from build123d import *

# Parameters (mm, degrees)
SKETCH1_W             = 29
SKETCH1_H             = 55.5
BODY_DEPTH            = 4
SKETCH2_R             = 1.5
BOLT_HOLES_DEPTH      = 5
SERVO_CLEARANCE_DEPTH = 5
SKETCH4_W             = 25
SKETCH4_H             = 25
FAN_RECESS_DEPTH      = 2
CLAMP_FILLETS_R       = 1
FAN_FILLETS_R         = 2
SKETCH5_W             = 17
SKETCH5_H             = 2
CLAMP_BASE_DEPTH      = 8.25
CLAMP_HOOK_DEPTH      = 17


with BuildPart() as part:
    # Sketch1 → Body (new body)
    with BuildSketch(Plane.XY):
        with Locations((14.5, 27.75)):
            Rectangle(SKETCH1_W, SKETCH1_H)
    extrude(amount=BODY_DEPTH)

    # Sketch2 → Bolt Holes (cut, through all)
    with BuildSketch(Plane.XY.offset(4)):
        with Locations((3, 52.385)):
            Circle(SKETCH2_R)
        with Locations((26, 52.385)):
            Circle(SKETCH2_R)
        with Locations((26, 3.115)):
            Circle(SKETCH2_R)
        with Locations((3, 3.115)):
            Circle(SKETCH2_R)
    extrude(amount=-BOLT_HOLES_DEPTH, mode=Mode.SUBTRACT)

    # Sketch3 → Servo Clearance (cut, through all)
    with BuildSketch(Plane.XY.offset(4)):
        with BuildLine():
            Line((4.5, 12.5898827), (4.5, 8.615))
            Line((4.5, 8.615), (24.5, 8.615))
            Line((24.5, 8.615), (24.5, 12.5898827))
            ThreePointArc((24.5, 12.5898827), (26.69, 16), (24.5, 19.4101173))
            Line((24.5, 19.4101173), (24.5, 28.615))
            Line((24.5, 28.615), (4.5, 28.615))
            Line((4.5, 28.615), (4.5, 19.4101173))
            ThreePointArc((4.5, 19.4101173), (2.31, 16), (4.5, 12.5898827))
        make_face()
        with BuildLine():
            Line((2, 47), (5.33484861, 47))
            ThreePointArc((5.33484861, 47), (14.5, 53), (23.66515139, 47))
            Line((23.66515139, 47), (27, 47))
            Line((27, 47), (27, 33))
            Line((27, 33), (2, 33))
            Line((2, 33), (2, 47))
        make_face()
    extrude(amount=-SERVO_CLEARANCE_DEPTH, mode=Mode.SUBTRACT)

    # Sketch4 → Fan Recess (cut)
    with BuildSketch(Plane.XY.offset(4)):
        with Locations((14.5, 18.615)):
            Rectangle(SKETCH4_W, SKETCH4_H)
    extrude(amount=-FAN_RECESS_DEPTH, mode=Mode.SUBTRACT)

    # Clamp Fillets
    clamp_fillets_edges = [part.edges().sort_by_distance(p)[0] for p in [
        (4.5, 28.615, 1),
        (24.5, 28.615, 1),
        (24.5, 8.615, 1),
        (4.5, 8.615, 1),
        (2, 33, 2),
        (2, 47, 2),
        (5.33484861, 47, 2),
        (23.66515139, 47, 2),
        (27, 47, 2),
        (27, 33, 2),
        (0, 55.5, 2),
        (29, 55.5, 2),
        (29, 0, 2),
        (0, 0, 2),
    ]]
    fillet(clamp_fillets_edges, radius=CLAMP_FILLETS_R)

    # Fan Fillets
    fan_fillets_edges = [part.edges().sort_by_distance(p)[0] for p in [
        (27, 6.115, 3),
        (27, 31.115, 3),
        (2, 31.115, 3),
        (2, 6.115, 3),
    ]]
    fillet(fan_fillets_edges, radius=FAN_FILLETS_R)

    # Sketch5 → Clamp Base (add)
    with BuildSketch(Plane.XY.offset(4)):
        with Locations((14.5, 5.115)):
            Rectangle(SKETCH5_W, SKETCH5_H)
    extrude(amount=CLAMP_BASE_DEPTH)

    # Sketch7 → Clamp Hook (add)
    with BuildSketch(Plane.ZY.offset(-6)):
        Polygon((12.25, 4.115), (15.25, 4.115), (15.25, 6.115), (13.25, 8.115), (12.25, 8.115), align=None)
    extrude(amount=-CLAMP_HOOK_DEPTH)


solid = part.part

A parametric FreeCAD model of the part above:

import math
import FreeCAD as App
import Part
import Sketcher
from FreeCAD import Vector


def edges_at(feature, points):
    """Names of the edges that pass closest to the given points."""
    edges = feature.Shape.Edges
    near = lambda p: min(range(len(edges)), key=lambda i: edges[i].distToShape(Part.Vertex(*p))[0])
    return sorted({f"Edge{near(p) + 1}" for p in points})


def add_polygon(sketch, points):
    """Adds a closed chain of lines whose ends are joined by coincident constraints."""
    first, n = sketch.GeometryCount, len(points)
    for a, b in zip(points, points[1:] + points[:1]):
        sketch.addGeometry(Part.LineSegment(App.Vector(*a, 0), App.Vector(*b, 0)), False)
    for i in range(n):
        sketch.addConstraint(Sketcher.Constraint("Coincident", first + i, 2, first + (i + 1) % n, 1))

doc = App.newDocument("Part")
body = doc.addObject("PartDesign::Body", "Body")

sketch1 = doc.addObject("Sketcher::SketchObject", "Sketch")
body.addObject(sketch1)
sketch1.AttachmentSupport = (doc.XY_Plane, [""])
sketch1.MapMode = "FlatFace"
add_polygon(sketch1, [(0, 56), (0, 0), (29, 0), (29, 56)])
sketch1.addConstraint(Sketcher.Constraint("Vertical", 0))
sketch1.addConstraint(Sketcher.Constraint("Horizontal", 1))
sketch1.addConstraint(Sketcher.Constraint("Vertical", 2))
sketch1.addConstraint(Sketcher.Constraint("Horizontal", 3))
sketch1.addConstraint(Sketcher.Constraint("Coincident", 0, 2, -1, 1))
sketch1.addConstraint(Sketcher.Constraint("DistanceX", 1, 1, 1, 2, 29.0))
sketch1.addConstraint(Sketcher.Constraint("DistanceY", 0, 2, 0, 1, 55.5))
pad1 = doc.addObject("PartDesign::Pad", "Pad")
body.addObject(pad1)
pad1.Profile = sketch1
pad1.Length = 4

sketch2 = doc.addObject("Sketcher::SketchObject", "Sketch001")
body.addObject(sketch2)
sketch2.AttachmentSupport = (doc.XY_Plane, [""])
sketch2.MapMode = "FlatFace"
sketch2.AttachmentOffset = App.Placement(Vector(0, 0, 4), App.Rotation())
sketch2.addGeometry(Part.Circle(Vector(3, 52.4, 0), Vector(0, 0, 1), 1.5), False)
sketch2.addGeometry(Part.Circle(Vector(26, 52.4, 0), Vector(0, 0, 1), 1.5), False)
sketch2.addGeometry(Part.Circle(Vector(26, 3.1, 0), Vector(0, 0, 1), 1.5), False)
sketch2.addGeometry(Part.Circle(Vector(3, 3.1, 0), Vector(0, 0, 1), 1.5), False)
sketch2.addConstraint(Sketcher.Constraint("Equal", 0, 1))
sketch2.addConstraint(Sketcher.Constraint("Equal", 1, 2))
sketch2.addConstraint(Sketcher.Constraint("Equal", 2, 3))
sketch2.addConstraint(Sketcher.Constraint("Horizontal", 0, 3, 1, 3))
sketch2.addConstraint(Sketcher.Constraint("Horizontal", 2, 3, 3, 3))
sketch2.addConstraint(Sketcher.Constraint("Vertical", 1, 3, 2, 3))
sketch2.addConstraint(Sketcher.Constraint("Vertical", 0, 3, 3, 3))
sketch2.addConstraint(Sketcher.Constraint("Diameter", 0, 3.0))
sketch2.addConstraint(Sketcher.Constraint("DistanceX", -1, 1, 0, 3, 3.0))
sketch2.addConstraint(Sketcher.Constraint("DistanceX", -1, 1, 1, 3, 26.0))
sketch2.addConstraint(Sketcher.Constraint("DistanceY", 2, 3, 1, 3, 49.27))
sketch2.addConstraint(Sketcher.Constraint("DistanceY", -1, 1, 0, 3, 52.385))
pocket1 = doc.addObject("PartDesign::Pocket", "Pocket")
body.addObject(pocket1)
pocket1.Profile = sketch2
pocket1.Type = "ThroughAll"

sketch3 = doc.addObject("Sketcher::SketchObject", "Sketch002")
body.addObject(sketch3)
sketch3.AttachmentSupport = (doc.XY_Plane, [""])
sketch3.MapMode = "FlatFace"
sketch3.AttachmentOffset = App.Placement(Vector(0, 0, 4), App.Rotation())
sketch3.addGeometry(Part.LineSegment(Vector(4.5, 12.6, 0), Vector(4.5, 8.6, 0)), False)
sketch3.addGeometry(Part.LineSegment(Vector(4.5, 8.6, 0), Vector(24.5, 8.6, 0)), False)
sketch3.addGeometry(Part.LineSegment(Vector(24.5, 8.6, 0), Vector(24.5, 12.6, 0)), False)
sketch3.addGeometry(Part.ArcOfCircle(Part.Circle(Vector(22.9, 16, 0), Vector(0, 0, 1), 3.8), math.radians(-65), math.radians(65)), False)
sketch3.addGeometry(Part.LineSegment(Vector(24.5, 19.4, 0), Vector(24.5, 28.6, 0)), False)
sketch3.addGeometry(Part.LineSegment(Vector(24.5, 28.6, 0), Vector(4.5, 28.6, 0)), False)
sketch3.addGeometry(Part.LineSegment(Vector(4.5, 28.6, 0), Vector(4.5, 19.4, 0)), False)
sketch3.addGeometry(Part.ArcOfCircle(Part.Circle(Vector(6.1, 16, 0), Vector(0, 0, 1), 3.8), math.radians(115), math.radians(245)), False)
sketch3.addGeometry(Part.LineSegment(Vector(5.3, 47, 0), Vector(2, 47, 0)), False)
sketch3.addGeometry(Part.LineSegment(Vector(2, 47, 0), Vector(2, 33, 0)), False)
sketch3.addGeometry(Part.LineSegment(Vector(2, 33, 0), Vector(27, 33, 0)), False)
sketch3.addGeometry(Part.LineSegment(Vector(27, 33, 0), Vector(27, 47, 0)), False)
sketch3.addGeometry(Part.LineSegment(Vector(27, 47, 0), Vector(23.7, 47, 0)), False)
sketch3.addGeometry(Part.ArcOfCircle(Part.Circle(Vector(14.5, 43, 0), Vector(0, 0, 1), 10), math.radians(24), math.radians(156)), False)
sketch3.addConstraint(Sketcher.Constraint("Coincident", 0, 2, 1, 1))
sketch3.addConstraint(Sketcher.Constraint("Coincident", 1, 2, 2, 1))
sketch3.addConstraint(Sketcher.Constraint("Coincident", 2, 2, 3, 1))
sketch3.addConstraint(Sketcher.Constraint("Coincident", 3, 2, 4, 1))
sketch3.addConstraint(Sketcher.Constraint("Coincident", 4, 2, 5, 1))
sketch3.addConstraint(Sketcher.Constraint("Coincident", 5, 2, 6, 1))
sketch3.addConstraint(Sketcher.Constraint("Coincident", 6, 2, 7, 1))
sketch3.addConstraint(Sketcher.Constraint("Coincident", 7, 2, 0, 1))
sketch3.addConstraint(Sketcher.Constraint("Coincident", 8, 2, 9, 1))
sketch3.addConstraint(Sketcher.Constraint("Coincident", 9, 2, 10, 1))
sketch3.addConstraint(Sketcher.Constraint("Coincident", 10, 2, 11, 1))
sketch3.addConstraint(Sketcher.Constraint("Coincident", 11, 2, 12, 1))
sketch3.addConstraint(Sketcher.Constraint("Coincident", 12, 2, 13, 1))
sketch3.addConstraint(Sketcher.Constraint("Coincident", 13, 2, 8, 1))
sketch3.addConstraint(Sketcher.Constraint("Vertical", 0))
sketch3.addConstraint(Sketcher.Constraint("Horizontal", 1))
sketch3.addConstraint(Sketcher.Constraint("Vertical", 2))
sketch3.addConstraint(Sketcher.Constraint("Vertical", 4))
sketch3.addConstraint(Sketcher.Constraint("Horizontal", 5))
sketch3.addConstraint(Sketcher.Constraint("Vertical", 6))
sketch3.addConstraint(Sketcher.Constraint("Horizontal", 8))
sketch3.addConstraint(Sketcher.Constraint("Vertical", 9))
sketch3.addConstraint(Sketcher.Constraint("Horizontal", 10))
sketch3.addConstraint(Sketcher.Constraint("Vertical", 11))
sketch3.addConstraint(Sketcher.Constraint("Horizontal", 12))
sketch3.addConstraint(Sketcher.Constraint("Equal", 3, 7))
sketch3.addConstraint(Sketcher.Constraint("Horizontal", 3, 3, 7, 3))
sketch3.addConstraint(Sketcher.Constraint("Horizontal", 3, 2, 6, 2))
sketch3.addConstraint(Sketcher.Constraint("Horizontal", 2, 2, 7, 2))
sketch3.addConstraint(Sketcher.Constraint("Horizontal", 8, 2, 11, 2))
sketch3.addConstraint(Sketcher.Constraint("Vertical", 2, 2, 3, 2))
sketch3.addConstraint(Sketcher.Constraint("Equal", 8, 12))
sketch3.addConstraint(Sketcher.Constraint("Radius", 13, 10.0))
sketch3.addConstraint(Sketcher.Constraint("DistanceX", 1, 1, 1, 2, 20.0))
sketch3.addConstraint(Sketcher.Constraint("DistanceX", 10, 1, 10, 2, 25.0))
sketch3.addConstraint(Sketcher.Constraint("DistanceY", 9, 2, 9, 1, 14.0))
sketch3.addConstraint(Sketcher.Constraint("Radius", 3, 3.75))
sketch3.addConstraint(Sketcher.Constraint("DistanceY", -1, 1, 3, 3, 16.0))
sketch3.addConstraint(Sketcher.Constraint("DistanceY", -1, 1, 13, 3, 43.0))
sketch3.addConstraint(Sketcher.Constraint("DistanceX", -1, 1, 8, 2, 2.0))
sketch3.addConstraint(Sketcher.Constraint("DistanceY", -1, 1, 8, 2, 47.0))
sketch3.addConstraint(Sketcher.Constraint("DistanceX", 0, 2, 13, 3, 10.0))
sketch3.addConstraint(Sketcher.Constraint("DistanceY", 1, 2, 4, 2, 20.0))
sketch3.addConstraint(Sketcher.Constraint("DistanceX", -1, 1, 3, 3, 22.94))
sketch3.addConstraint(Sketcher.Constraint("DistanceY", -1, 1, 0, 2, 8.615))
pocket2 = doc.addObject("PartDesign::Pocket", "Pocket001")
body.addObject(pocket2)
pocket2.Profile = sketch3
pocket2.Type = "ThroughAll"

sketch4 = doc.addObject("Sketcher::SketchObject", "Sketch003")
body.addObject(sketch4)
sketch4.AttachmentSupport = (doc.XY_Plane, [""])
sketch4.MapMode = "FlatFace"
sketch4.AttachmentOffset = App.Placement(Vector(0, 0, 4), App.Rotation())
add_polygon(sketch4, [(2, 31), (2, 6), (27, 6), (27, 31)])
sketch4.addConstraint(Sketcher.Constraint("Vertical", 0))
sketch4.addConstraint(Sketcher.Constraint("Horizontal", 1))
sketch4.addConstraint(Sketcher.Constraint("Vertical", 2))
sketch4.addConstraint(Sketcher.Constraint("Horizontal", 3))
sketch4.addConstraint(Sketcher.Constraint("Equal", 3, 0))
sketch4.addConstraint(Sketcher.Constraint("DistanceX", 1, 1, 1, 2, 25.0))
sketch4.addConstraint(Sketcher.Constraint("DistanceX", -1, 1, 0, 2, 2.0))
sketch4.addConstraint(Sketcher.Constraint("DistanceY", -1, 1, 0, 2, 6.115))
pocket3 = doc.addObject("PartDesign::Pocket", "Pocket002")
body.addObject(pocket3)
pocket3.Profile = sketch4
pocket3.Length = 2
doc.recompute()

fillet = doc.addObject("PartDesign::Fillet", "Fillet")
body.addObject(fillet)
fillet.Base = (pocket3, edges_at(pocket3, [
    (4.5, 28.615, 1),
    (24.5, 28.615, 1),
    (24.5, 8.615, 1),
    (4.5, 8.615, 1),
    (2, 33, 2),
    (2, 47, 2),
    (5.335, 47, 2),
    (23.665, 47, 2),
    (27, 47, 2),
    (27, 33, 2),
    (0, 55.5, 2),
    (29, 55.5, 2),
    (29, 0, 2),
    (0, 0, 2),
]))
fillet.Radius = 1
doc.recompute()

fillet2 = doc.addObject("PartDesign::Fillet", "Fillet001")
body.addObject(fillet2)
fillet2.Base = (fillet, edges_at(fillet, [
    (27, 6.115, 3),
    (27, 31.115, 3),
    (2, 31.115, 3),
    (2, 6.115, 3),
]))
fillet2.Radius = 2

sketch5 = doc.addObject("Sketcher::SketchObject", "Sketch004")
body.addObject(sketch5)
sketch5.AttachmentSupport = (doc.XY_Plane, [""])
sketch5.MapMode = "FlatFace"
sketch5.AttachmentOffset = App.Placement(Vector(0, 0, 4), App.Rotation())
add_polygon(sketch5, [(6, 6.1), (6, 4.1), (23, 4.1), (23, 6.1)])
sketch5.addConstraint(Sketcher.Constraint("Vertical", 0))
sketch5.addConstraint(Sketcher.Constraint("Horizontal", 1))
sketch5.addConstraint(Sketcher.Constraint("Vertical", 2))
sketch5.addConstraint(Sketcher.Constraint("Horizontal", 3))
sketch5.addConstraint(Sketcher.Constraint("DistanceX", 1, 1, 1, 2, 17.0))
sketch5.addConstraint(Sketcher.Constraint("DistanceY", 0, 2, 0, 1, 2.0))
sketch5.addConstraint(Sketcher.Constraint("DistanceX", -1, 1, 0, 2, 6.0))
sketch5.addConstraint(Sketcher.Constraint("DistanceY", -1, 1, 0, 2, 4.115))
pad2 = doc.addObject("PartDesign::Pad", "Pad001")
body.addObject(pad2)
pad2.Profile = sketch5
pad2.Length = 8.25

sketch6 = doc.addObject("Sketcher::SketchObject", "Sketch005")
body.addObject(sketch6)
sketch6.AttachmentSupport = (doc.YZ_Plane, [""])
sketch6.MapMode = "FlatFace"
sketch6.AttachmentOffset = App.Placement(Vector(0, 0, 6), App.Rotation())
add_polygon(sketch6, [(4.1, 12.2), (4.1, 15.2), (6.1, 15.2), (8.1, 13.2), (8.1, 12.2)])
sketch6.addConstraint(Sketcher.Constraint("Vertical", 0))
sketch6.addConstraint(Sketcher.Constraint("Horizontal", 1))
sketch6.addConstraint(Sketcher.Constraint("Vertical", 3))
sketch6.addConstraint(Sketcher.Constraint("Horizontal", 4))
sketch6.addConstraint(Sketcher.Constraint("DistanceX", 1, 1, 1, 2, 2.0))
sketch6.addConstraint(Sketcher.Constraint("DistanceX", 4, 2, 4, 1, 4.0))
sketch6.addConstraint(Sketcher.Constraint("DistanceY", 0, 1, 0, 2, 3.0))
sketch6.addConstraint(Sketcher.Constraint("DistanceY", 3, 2, 3, 1, 1.0))
sketch6.addConstraint(Sketcher.Constraint("DistanceY", -1, 1, 0, 2, 15.25))
sketch6.addConstraint(Sketcher.Constraint("DistanceX", -1, 1, 0, 2, 4.115))
pad3 = doc.addObject("PartDesign::Pad", "Pad002")
body.addObject(pad3)
pad3.Profile = sketch6
pad3.Length = 17

doc.recompute()
